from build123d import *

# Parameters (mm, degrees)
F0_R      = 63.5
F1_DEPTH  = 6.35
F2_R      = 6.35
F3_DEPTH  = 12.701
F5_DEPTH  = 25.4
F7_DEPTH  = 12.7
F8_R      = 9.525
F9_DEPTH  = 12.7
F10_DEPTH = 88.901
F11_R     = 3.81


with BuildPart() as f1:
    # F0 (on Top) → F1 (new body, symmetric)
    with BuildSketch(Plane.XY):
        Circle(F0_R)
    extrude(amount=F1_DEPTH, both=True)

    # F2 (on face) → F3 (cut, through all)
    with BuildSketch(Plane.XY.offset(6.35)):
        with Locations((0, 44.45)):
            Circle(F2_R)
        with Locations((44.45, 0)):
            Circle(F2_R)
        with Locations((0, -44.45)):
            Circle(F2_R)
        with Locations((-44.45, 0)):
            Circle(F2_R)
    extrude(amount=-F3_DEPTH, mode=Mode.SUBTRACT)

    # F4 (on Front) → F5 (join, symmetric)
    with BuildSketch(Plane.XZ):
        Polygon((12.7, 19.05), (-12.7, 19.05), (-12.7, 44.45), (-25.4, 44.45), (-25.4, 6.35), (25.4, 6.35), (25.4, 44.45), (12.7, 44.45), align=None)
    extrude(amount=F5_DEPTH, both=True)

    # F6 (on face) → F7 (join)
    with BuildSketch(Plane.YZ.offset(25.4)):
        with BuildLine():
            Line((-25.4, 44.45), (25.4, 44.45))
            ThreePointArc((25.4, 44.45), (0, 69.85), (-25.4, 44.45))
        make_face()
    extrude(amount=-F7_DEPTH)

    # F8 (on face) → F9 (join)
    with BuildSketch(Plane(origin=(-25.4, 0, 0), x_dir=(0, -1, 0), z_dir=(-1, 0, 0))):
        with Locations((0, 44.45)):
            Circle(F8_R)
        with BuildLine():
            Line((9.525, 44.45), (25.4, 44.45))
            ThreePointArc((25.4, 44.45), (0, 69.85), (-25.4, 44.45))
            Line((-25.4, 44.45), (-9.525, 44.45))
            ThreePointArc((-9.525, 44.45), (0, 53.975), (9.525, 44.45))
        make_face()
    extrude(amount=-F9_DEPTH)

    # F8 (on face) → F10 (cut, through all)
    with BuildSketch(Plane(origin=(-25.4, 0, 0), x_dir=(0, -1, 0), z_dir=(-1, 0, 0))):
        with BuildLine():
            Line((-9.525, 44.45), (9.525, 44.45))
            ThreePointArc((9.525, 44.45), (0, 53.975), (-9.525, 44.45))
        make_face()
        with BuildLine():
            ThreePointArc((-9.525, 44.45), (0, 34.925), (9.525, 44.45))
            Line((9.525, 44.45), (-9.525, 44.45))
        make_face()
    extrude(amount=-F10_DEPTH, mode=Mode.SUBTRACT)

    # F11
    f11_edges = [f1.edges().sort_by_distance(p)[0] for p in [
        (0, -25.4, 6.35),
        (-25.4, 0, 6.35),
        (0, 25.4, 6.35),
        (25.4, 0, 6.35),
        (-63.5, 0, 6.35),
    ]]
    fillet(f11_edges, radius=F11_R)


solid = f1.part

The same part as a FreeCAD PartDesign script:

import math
import FreeCAD as App
import Part
import Sketcher
Q = App.Units.Quantity


def edges_at(feature, points):
    """Names of the edges that pass closest to the given points."""
    edges = feature.Shape.Edges
    near = lambda p: min(range(len(edges)), key=lambda i: edges[i].distToShape(Part.Vertex(*p))[0])
    return sorted({f"Edge{near(p) + 1}" for p in points})

doc = App.newDocument("Part")
body = doc.addObject("PartDesign::Body", "Body")

# Sketch on XY plane
sketch1 = body.newObject("Sketcher::SketchObject", "Sketch")
sketch1.AttachmentSupport = (doc.getObject("XY_Plane"), [""])
sketch1.MapMode = "FlatFace"
sketch1.addGeometry(Part.Circle(App.Vector(0, 0, 0), App.Vector(0, 0, 1), 63.5), False)
sketch1.addConstraint(Sketcher.Constraint("Coincident", 0, 3, -1, 1))
sketch1.addConstraint(Sketcher.Constraint("Diameter", 0, Q("5 in")))
pad1 = body.newObject("PartDesign::Pad", "Pad")
pad1.Profile = sketch1
pad1.Length = Q("0.5 in")
pad1.Midplane = True

# Sketch on XY plane
sketch2 = body.newObject("Sketcher::SketchObject", "Sketch001")
sketch2.AttachmentSupport = (doc.getObject("XY_Plane"), [""])
sketch2.MapMode = "FlatFace"
sketch2.AttachmentOffset = App.Placement(App.Vector(0, 0, 0.25 * 25.4), App.Rotation())
sketch2.addGeometry(Part.Circle(App.Vector(0, 44.45, 0), App.Vector(0, 0, 1), 6.35), False)
sketch2.addGeometry(Part.Circle(App.Vector(44.45, 0, 0), App.Vector(0, 0, 1), 6.35), False)
sketch2.addGeometry(Part.Circle(App.Vector(0, -44.45, 0), App.Vector(0, 0, 1), 6.35), False)
sketch2.addGeometry(Part.Circle(App.Vector(-44.45, 0, 0), App.Vector(0, 0, 1), 6.35), False)
sketch2.addConstraint(Sketcher.Constraint("Equal", 0, 1))
sketch2.addConstraint(Sketcher.Constraint("Equal", 1, 2))
sketch2.addConstraint(Sketcher.Constraint("Equal", 2, 3))
sketch2.addConstraint(Sketcher.Constraint("Symmetric", 0, 3, 2, 3, -1, 1))
sketch2.addConstraint(Sketcher.Constraint("Symmetric", 1, 3, 3, 3, -1, 1))
sketch2.addConstraint(Sketcher.Constraint("PointOnObject", 0, 3, -2))
sketch2.addConstraint(Sketcher.Constraint("PointOnObject", 1, 3, -1))
sketch2.addConstraint(Sketcher.Constraint("Diameter", 0, Q("0.5 in")))
sketch2.addConstraint(Sketcher.Constraint("DistanceY", 2, 3, 0, 3, Q("3.5 in")))
sketch2.addConstraint(Sketcher.Constraint("DistanceX", 3, 3, 1, 3, Q("3.5 in")))
pocket1 = body.newObject("PartDesign::Pocket", "Pocket")
pocket1.Profile = sketch2
pocket1.Type = "ThroughAll"

# Sketch on XZ plane
sketch3 = body.newObject("Sketcher::SketchObject", "Sketch002")
sketch3.AttachmentSupport = (doc.getObject("XZ_Plane"), [""])
sketch3.MapMode = "FlatFace"
sketch3.addGeometry(Part.LineSegment(App.Vector(12.7, 19.05, 0), App.Vector(-12.7, 19.05, 0)), False)
sketch3.addGeometry(Part.LineSegment(App.Vector(-12.7, 19.05, 0), App.Vector(-12.7, 44.45, 0)), False)
sketch3.addGeometry(Part.LineSegment(App.Vector(-12.7, 44.45, 0), App.Vector(-25.4, 44.45, 0)), False)
sketch3.addGeometry(Part.LineSegment(App.Vector(-25.4, 44.45, 0), App.Vector(-25.4, 6.35, 0)), False)
sketch3.addGeometry(Part.LineSegment(App.Vector(-25.4, 6.35, 0), App.Vector(25.4, 6.35, 0)), False)
sketch3.addGeometry(Part.LineSegment(App.Vector(25.4, 6.35, 0), App.Vector(25.4, 44.45, 0)), False)
sketch3.addGeometry(Part.LineSegment(App.Vector(25.4, 44.45, 0), App.Vector(12.7, 44.45, 0)), False)
sketch3.addGeometry(Part.LineSegment(App.Vector(12.7, 44.45, 0), App.Vector(12.7, 19.05, 0)), False)
sketch3.addConstraint(Sketcher.Constraint("Coincident", 0, 2, 1, 1))
sketch3.addConstraint(Sketcher.Constraint("Coincident", 1, 2, 2, 1))
sketch3.addConstraint(Sketcher.Constraint("Coincident", 2, 2, 3, 1))
sketch3.addConstraint(Sketcher.Constraint("Coincident", 3, 2, 4, 1))
sketch3.addConstraint(Sketcher.Constraint("Coincident", 4, 2, 5, 1))
sketch3.addConstraint(Sketcher.Constraint("Coincident", 5, 2, 6, 1))
sketch3.addConstraint(Sketcher.Constraint("Coincident", 6, 2, 7, 1))
sketch3.addConstraint(Sketcher.Constraint("Coincident", 7, 2, 0, 1))
sketch3.addConstraint(Sketcher.Constraint("Horizontal", 0))
sketch3.addConstraint(Sketcher.Constraint("Vertical", 1))
sketch3.addConstraint(Sketcher.Constraint("Horizontal", 2))
sketch3.addConstraint(Sketcher.Constraint("Vertical", 3))
sketch3.addConstraint(Sketcher.Constraint("Horizontal", 4))
sketch3.addConstraint(Sketcher.Constraint("Vertical", 5))
sketch3.addConstraint(Sketcher.Constraint("Horizontal", 6))
sketch3.addConstraint(Sketcher.Constraint("Vertical", 7))
sketch3.addConstraint(Sketcher.Constraint("Symmetric", 2, 2, 5, 2, -2))
sketch3.addConstraint(Sketcher.Constraint("Equal", 2, 6))
sketch3.addConstraint(Sketcher.Constraint("Equal", 0, 1))
sketch3.addConstraint(Sketcher.Constraint("DistanceX", 0, 2, 0, 1, Q("1 in")))
sketch3.addConstraint(Sketcher.Constraint("DistanceX", 4, 1, 4, 2, Q("2 in")))
sketch3.addConstraint(Sketcher.Constraint("DistanceY", 3, 2, 3, 1, Q("1.5 in")))
sketch3.addConstraint(Sketcher.Constraint("DistanceY", -1, 1, 0, 2, Q("0.75 in")))
pad2 = body.newObject("PartDesign::Pad", "Pad001")
pad2.Profile = sketch3
pad2.Length = Q("2 in")
pad2.Midplane = True

# Sketch on YZ plane
sketch4 = body.newObject("Sketcher::SketchObject", "Sketch003")
sketch4.AttachmentSupport = (doc.getObject("YZ_Plane"), [""])
sketch4.MapMode = "FlatFace"
sketch4.AttachmentOffset = App.Placement(App.Vector(0, 0, 1 * 25.4), App.Rotation())
sketch4.addGeometry(Part.LineSegment(App.Vector(-25.4, 44.45, 0), App.Vector(25.4, 44.45, 0)), False)
sketch4.addGeometry(Part.ArcOfCircle(Part.Circle(App.Vector(0, 44.45, 0), App.Vector(0, 0, 1), 25.4), math.radians(0), math.radians(180)), False)
sketch4.addConstraint(Sketcher.Constraint("Coincident", 0, 1, 1, 2))
sketch4.addConstraint(Sketcher.Constraint("Coincident", 1, 1, 0, 2))
sketch4.addConstraint(Sketcher.Constraint("Horizontal", 0))
sketch4.addConstraint(Sketcher.Constraint("PointOnObject", 1, 3, -2))
sketch4.addConstraint(Sketcher.Constraint("Horizontal", 1, 3, 0, 1))
sketch4.addConstraint(Sketcher.Constraint("Radius", 1, Q("1 in")))
sketch4.addConstraint(Sketcher.Constraint("DistanceY", -1, 1, 1, 3, Q("1.75 in")))
pad3 = body.newObject("PartDesign::Pad", "Pad002")
pad3.Profile = sketch4
pad3.Length = Q("0.5 in")
pad3.Reversed = True

# Sketch on YZ plane
sketch5 = body.newObject("Sketcher::SketchObject", "Sketch004")
sketch5.AttachmentSupport = (doc.getObject("YZ_Plane"), [""])
sketch5.MapMode = "FlatFace"
sketch5.AttachmentOffset = App.Placement(App.Vector(0, 0, -1 * 25.4), App.Rotation())
sketch5.addGeometry(Part.ArcOfCircle(Part.Circle(App.Vector(0, 44.45, 0), App.Vector(0, 0, 1), 9.525), math.radians(180), math.radians(360)), False)
sketch5.addGeometry(Part.LineSegment(App.Vector(-9.525, 44.45, 0), App.Vector(-25.4, 44.45, 0)), False)
sketch5.addGeometry(Part.ArcOfCircle(Part.Circle(App.Vector(0, 44.45, 0), App.Vector(0, 0, 1), 25.4), math.radians(0), math.radians(180)), False)
sketch5.addGeometry(Part.LineSegment(App.Vector(25.4, 44.45, 0), App.Vector(9.525, 44.45, 0)), False)
sketch5.addConstraint(Sketcher.Constraint("Coincident", 0, 1, 1, 1))
sketch5.addConstraint(Sketcher.Constraint("Coincident", 1, 2, 2, 2))
sketch5.addConstraint(Sketcher.Constraint("Coincident", 2, 1, 3, 1))
sketch5.addConstraint(Sketcher.Constraint("Coincident", 3, 2, 0, 2))
sketch5.addConstraint(Sketcher.Constraint("Horizontal", 1))
sketch5.addConstraint(Sketcher.Constraint("Horizontal", 3))
sketch5.addConstraint(Sketcher.Constraint("Coincident", 2, 3, 0, 3))
sketch5.addConstraint(Sketcher.Constraint("Symmetric", 1, 2, 2, 1, -2))
sketch5.addConstraint(Sketcher.Constraint("Horizontal", 2, 3, 0, 1))
sketch5.addConstraint(Sketcher.Constraint("Radius", 2, Q("1 in")))
sketch5.addConstraint(Sketcher.Constraint("Radius", 0, Q("0.375 in")))
sketch5.addConstraint(Sketcher.Constraint("DistanceY", -1, 1, 0, 3, Q("1.75 in")))
pad4 = body.newObject("PartDesign::Pad", "Pad003")
pad4.Profile = sketch5
pad4.Length = Q("0.5 in")

# Sketch on YZ plane
sketch6 = body.newObject("Sketcher::SketchObject", "Sketch005")
sketch6.AttachmentSupport = (doc.getObject("YZ_Plane"), [""])
sketch6.MapMode = "FlatFace"
sketch6.AttachmentOffset = App.Placement(App.Vector(0, 0, -1 * 25.4), App.Rotation())
sketch6.addGeometry(Part.Circle(App.Vector(0, 44.45, 0), App.Vector(0, 0, 1), 9.525), False)
sketch6.addConstraint(Sketcher.Constraint("PointOnObject", 0, 3, -2))
sketch6.addConstraint(Sketcher.Constraint("Diameter", 0, Q("0.75 in")))
sketch6.addConstraint(Sketcher.Constraint("DistanceY", -1, 1, 0, 3, Q("1.75 in")))
pocket2 = body.newObject("PartDesign::Pocket", "Pocket001")
pocket2.Profile = sketch6
pocket2.Type = "ThroughAll"
pocket2.Reversed = True
doc.recompute()

fillet = body.newObject("PartDesign::Fillet", "Fillet")
fillet.Base = (pocket2, edges_at(pocket2, [
    (0, -25.4, 6.35),
    (-25.4, 0, 6.35),
    (0, 25.4, 6.35),
    (25.4, 0, 6.35),
    (-63.5, 0, 6.35),
]))
fillet.Radius = Q("0.15 in")

doc.recompute()
